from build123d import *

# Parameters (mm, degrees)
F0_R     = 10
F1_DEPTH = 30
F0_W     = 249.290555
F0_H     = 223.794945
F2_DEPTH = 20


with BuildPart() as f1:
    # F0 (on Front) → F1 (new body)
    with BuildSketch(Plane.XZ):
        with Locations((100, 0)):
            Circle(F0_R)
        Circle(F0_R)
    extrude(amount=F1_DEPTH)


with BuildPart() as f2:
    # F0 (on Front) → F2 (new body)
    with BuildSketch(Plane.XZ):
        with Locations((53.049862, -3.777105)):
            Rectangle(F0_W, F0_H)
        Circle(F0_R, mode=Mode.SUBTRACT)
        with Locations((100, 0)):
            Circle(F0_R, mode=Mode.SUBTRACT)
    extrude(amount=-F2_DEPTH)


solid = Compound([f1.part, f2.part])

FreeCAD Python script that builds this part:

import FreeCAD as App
import Part
import Sketcher
from FreeCAD import Vector


def add_polygon(sketch, points):
    """Adds a closed chain of lines whose ends are joined by coincident constraints."""
    first, n = sketch.GeometryCount, len(points)
    for a, b in zip(points, points[1:] + points[:1]):
        sketch.addGeometry(Part.LineSegment(App.Vector(*a, 0), App.Vector(*b, 0)), False)
    for i in range(n):
        sketch.addConstraint(Sketcher.Constraint("Coincident", first + i, 2, first + (i + 1) % n, 1))

doc = App.newDocument("Part")
body = doc.addObject("PartDesign::Body", "Body")
body.AllowCompound = True

# Sketch on XZ plane
sketch1 = body.newObject("Sketcher::SketchObject", "Sketch")
sketch1.AttachmentSupport = (doc.getObject("XZ_Plane"), [""])
sketch1.MapMode = "FlatFace"
sketch1.addGeometry([
    Part.Circle(Vector(100, 0, 0), Vector(0, 0, 1), 10),
    Part.Circle(Vector(0, 0, 0), Vector(0, 0, 1), 10),
], False)
sketch1.addConstraint([
    Sketcher.Constraint("Coincident", 1, 3, -1, 1),
    Sketcher.Constraint("Equal", 0, 1),
    Sketcher.Constraint("PointOnObject", 0, 3, -1),
    Sketcher.Constraint("Diameter", 0, 20.0),
    Sketcher.Constraint("DistanceX", -1, 1, 0, 3, 100.0),
])
pad1 = body.newObject("PartDesign::Pad", "Pad")
pad1.Profile = sketch1
pad1.Length = 30
body2 = doc.addObject("PartDesign::Body", "Body001")

# Sketch on XZ plane
sketch2 = body2.newObject("Sketcher::SketchObject", "Sketch001")
sketch2.AttachmentSupport = (doc.getObject("XZ_Plane001"), [""])
sketch2.MapMode = "FlatFace"
add_polygon(sketch2, [(-71.595416, 108.120368), (-71.595416, -115.674577), (177.69514, -115.674577), (177.69514, 108.120368)])  # lines 0-3
sketch2.addGeometry(Part.Circle(Vector(0, 0, 0), Vector(0, 0, 1), 10), False)  # 4
sketch2.addGeometry(Part.Circle(Vector(100, 0, 0), Vector(0, 0, 1), 10), False)  # 5
sketch2.addConstraint([
    Sketcher.Constraint("Vertical", 0),
    Sketcher.Constraint("Horizontal", 1),
    Sketcher.Constraint("Vertical", 2),
    Sketcher.Constraint("Horizontal", 3),
    Sketcher.Constraint("Coincident", 4, 3, -1, 1),
    Sketcher.Constraint("Equal", 4, 5),
    Sketcher.Constraint("PointOnObject", 5, 3, -1),
    Sketcher.Constraint("Diameter", 4, 20.0),
    Sketcher.Constraint("DistanceX", -1, 1, 5, 3, 100.0),
    Sketcher.Constraint("DistanceX", 1, 1, 1, 2, 249.290555),
    Sketcher.Constraint("DistanceY", 0, 2, 0, 1, 223.794945),
    Sketcher.Constraint("DistanceX", -1, 1, 1, 2, 177.69514),
    Sketcher.Constraint("DistanceY", 0, 2, -1, 1, 115.674577),
])
pad2 = body2.newObject("PartDesign::Pad", "Pad001")
pad2.Profile = sketch2
pad2.Length = 20
pad2.Reversed = True

doc.recompute()
